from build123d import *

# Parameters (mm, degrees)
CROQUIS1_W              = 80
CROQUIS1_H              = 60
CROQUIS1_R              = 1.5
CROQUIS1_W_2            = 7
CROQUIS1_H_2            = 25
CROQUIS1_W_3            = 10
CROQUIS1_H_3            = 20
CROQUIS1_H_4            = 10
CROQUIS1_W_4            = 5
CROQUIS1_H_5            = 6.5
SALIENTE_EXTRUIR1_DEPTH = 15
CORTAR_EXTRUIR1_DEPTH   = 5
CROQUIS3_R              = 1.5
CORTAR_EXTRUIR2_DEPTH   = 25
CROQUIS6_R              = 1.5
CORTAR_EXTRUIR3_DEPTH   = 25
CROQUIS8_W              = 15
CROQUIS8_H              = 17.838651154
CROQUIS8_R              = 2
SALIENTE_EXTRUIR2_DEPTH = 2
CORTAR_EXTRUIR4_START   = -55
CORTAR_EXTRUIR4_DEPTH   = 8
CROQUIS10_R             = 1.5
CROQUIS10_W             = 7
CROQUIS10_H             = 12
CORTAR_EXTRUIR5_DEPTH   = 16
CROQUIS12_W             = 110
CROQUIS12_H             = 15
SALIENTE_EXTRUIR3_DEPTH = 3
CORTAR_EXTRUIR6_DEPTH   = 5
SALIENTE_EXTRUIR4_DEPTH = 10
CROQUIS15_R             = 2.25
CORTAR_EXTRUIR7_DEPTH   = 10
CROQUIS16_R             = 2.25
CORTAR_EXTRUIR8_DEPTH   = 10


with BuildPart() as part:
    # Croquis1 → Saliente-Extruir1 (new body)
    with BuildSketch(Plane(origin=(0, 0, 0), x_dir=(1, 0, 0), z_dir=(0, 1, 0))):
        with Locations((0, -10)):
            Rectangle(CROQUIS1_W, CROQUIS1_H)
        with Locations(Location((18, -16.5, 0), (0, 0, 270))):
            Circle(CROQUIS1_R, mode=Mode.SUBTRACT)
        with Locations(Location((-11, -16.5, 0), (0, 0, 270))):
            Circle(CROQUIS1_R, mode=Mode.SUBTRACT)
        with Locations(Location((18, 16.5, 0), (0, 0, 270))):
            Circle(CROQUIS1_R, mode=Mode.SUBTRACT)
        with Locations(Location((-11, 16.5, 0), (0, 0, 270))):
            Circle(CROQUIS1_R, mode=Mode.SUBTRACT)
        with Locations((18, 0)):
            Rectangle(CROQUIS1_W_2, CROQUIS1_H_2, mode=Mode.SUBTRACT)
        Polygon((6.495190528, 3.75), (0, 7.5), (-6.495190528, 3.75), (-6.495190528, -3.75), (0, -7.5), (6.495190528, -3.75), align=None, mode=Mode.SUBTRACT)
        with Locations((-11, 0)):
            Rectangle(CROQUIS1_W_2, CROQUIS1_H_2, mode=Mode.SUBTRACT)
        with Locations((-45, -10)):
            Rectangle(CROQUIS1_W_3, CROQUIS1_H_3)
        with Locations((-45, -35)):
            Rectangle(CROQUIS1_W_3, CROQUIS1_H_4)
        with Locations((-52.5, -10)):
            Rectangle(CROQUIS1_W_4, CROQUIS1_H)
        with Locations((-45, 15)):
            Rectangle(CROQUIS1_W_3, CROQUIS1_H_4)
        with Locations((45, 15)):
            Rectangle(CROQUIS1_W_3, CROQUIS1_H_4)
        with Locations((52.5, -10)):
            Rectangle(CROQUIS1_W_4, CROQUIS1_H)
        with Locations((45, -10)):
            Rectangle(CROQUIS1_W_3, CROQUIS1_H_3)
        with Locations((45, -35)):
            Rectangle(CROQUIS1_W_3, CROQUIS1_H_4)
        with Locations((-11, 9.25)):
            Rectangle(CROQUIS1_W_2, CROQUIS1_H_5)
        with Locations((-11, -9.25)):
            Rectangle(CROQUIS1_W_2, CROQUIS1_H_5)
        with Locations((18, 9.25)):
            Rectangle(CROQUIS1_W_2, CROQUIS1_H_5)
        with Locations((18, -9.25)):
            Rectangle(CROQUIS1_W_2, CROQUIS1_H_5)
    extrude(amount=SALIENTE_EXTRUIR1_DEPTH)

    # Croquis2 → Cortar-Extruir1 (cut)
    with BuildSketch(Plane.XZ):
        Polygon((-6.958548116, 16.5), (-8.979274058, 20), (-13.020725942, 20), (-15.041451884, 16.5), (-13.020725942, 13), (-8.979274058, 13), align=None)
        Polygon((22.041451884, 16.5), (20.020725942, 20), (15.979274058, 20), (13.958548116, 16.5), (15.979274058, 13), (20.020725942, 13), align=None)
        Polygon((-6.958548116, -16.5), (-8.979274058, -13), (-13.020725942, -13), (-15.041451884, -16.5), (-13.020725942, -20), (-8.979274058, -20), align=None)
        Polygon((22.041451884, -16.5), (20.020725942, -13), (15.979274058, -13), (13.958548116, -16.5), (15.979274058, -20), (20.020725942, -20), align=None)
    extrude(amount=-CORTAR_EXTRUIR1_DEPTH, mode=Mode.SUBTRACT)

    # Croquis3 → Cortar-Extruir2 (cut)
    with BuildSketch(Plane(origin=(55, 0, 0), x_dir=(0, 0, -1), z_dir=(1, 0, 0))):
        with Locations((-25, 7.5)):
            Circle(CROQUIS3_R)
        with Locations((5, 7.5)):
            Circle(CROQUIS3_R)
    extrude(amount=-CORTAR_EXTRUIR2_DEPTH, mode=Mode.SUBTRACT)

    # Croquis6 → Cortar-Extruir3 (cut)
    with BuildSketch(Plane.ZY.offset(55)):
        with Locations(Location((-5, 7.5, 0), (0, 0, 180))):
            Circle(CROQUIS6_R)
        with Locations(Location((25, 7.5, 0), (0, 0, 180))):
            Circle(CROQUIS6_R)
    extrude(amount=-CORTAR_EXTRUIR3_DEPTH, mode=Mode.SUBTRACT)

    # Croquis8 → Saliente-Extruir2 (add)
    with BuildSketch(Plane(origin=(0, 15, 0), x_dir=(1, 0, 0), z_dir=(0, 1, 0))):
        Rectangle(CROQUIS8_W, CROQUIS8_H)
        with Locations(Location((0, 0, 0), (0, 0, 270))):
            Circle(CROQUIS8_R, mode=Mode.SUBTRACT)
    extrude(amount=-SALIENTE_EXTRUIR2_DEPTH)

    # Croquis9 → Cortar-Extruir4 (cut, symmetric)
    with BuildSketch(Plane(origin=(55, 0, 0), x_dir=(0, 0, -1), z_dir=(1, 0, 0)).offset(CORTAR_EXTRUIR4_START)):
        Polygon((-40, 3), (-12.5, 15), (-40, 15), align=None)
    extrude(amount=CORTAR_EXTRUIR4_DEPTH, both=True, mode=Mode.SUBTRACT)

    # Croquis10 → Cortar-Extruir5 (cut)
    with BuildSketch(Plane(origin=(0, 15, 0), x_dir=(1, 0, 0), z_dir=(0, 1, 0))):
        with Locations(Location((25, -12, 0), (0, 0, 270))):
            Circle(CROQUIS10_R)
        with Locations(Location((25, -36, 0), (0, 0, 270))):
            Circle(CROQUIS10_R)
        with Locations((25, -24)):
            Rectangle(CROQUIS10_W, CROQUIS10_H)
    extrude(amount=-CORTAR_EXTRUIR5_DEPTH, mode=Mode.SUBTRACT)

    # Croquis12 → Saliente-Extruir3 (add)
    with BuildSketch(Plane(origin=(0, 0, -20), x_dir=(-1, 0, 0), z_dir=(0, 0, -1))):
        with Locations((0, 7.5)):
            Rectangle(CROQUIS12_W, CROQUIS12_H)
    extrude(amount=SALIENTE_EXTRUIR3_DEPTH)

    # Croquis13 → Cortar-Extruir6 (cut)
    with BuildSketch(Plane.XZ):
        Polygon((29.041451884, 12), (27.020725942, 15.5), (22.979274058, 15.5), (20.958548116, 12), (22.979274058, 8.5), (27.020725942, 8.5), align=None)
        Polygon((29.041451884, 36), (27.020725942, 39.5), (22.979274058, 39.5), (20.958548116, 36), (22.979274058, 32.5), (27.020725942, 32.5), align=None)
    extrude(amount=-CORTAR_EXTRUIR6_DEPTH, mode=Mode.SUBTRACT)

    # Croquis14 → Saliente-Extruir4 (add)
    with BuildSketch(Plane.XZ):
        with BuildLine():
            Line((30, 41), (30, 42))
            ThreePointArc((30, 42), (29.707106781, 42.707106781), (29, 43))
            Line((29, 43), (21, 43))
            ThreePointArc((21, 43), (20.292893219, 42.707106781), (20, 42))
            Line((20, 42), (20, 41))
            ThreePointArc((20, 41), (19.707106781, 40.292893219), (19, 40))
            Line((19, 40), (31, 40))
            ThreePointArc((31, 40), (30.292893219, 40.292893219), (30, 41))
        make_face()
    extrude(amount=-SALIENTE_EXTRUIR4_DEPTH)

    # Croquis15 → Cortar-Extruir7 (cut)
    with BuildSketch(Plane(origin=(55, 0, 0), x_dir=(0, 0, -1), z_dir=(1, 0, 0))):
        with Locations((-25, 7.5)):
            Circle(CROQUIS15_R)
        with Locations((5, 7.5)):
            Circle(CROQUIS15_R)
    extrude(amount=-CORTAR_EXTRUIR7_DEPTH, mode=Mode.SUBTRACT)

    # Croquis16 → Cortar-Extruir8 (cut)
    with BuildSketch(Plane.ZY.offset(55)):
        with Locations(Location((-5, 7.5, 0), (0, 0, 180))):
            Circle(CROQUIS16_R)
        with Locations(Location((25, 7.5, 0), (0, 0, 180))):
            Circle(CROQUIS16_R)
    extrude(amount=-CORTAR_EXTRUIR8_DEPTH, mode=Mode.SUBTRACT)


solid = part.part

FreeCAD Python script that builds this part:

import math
import FreeCAD as App
import Part
import Sketcher

V = App.Vector
Q = App.Units.Quantity


def add_polygon(sketch, points):
    """Adds a closed chain of lines whose ends are joined by coincident constraints."""
    first, n = sketch.GeometryCount, len(points)
    for a, b in zip(points, points[1:] + points[:1]):
        sketch.addGeometry(Part.LineSegment(App.Vector(*a, 0), App.Vector(*b, 0)), False)
    for i in range(n):
        sketch.addConstraint(Sketcher.Constraint("Coincident", first + i, 2, first + (i + 1) % n, 1))

doc = App.newDocument("Part")
body = doc.addObject("PartDesign::Body", "Body")

sketch1 = doc.addObject("Sketcher::SketchObject", "Sketch")
body.addObject(sketch1)
sketch1.AttachmentSupport = (doc.XZ_Plane, [""])
sketch1.MapMode = "FlatFace"
add_polygon(sketch1, [(55, 40), (55, -20), (-55, -20), (-55, 40)])
add_polygon(sketch1, [(-40, 20), (-40, 30), (-50, 30), (-50, 20)])
add_polygon(sketch1, [(40, 30), (40, 20), (50, 20), (50, 30)])
add_polygon(sketch1, [(40, 0), (40, -10), (50, -10), (50, 0)])
add_polygon(sketch1, [(-40, -10), (-40, 0), (-50, 0), (-50, -10)])
sketch1.addGeometry(Part.Circle(V(-11, 16.5, 0), V(0, 0, 1), 1.5), False)
sketch1.addGeometry(Part.Circle(V(18, 16.5, 0), V(0, 0, 1), 1.5), False)
add_polygon(sketch1, [(-14.5, 6), (-14.5, -6), (-7.5, -6), (-7.5, 6)])
add_polygon(sketch1, [(0, -7.5), (6.5, -3.8), (6.5, 3.8), (0, 7.5), (-6.5, 3.8), (-6.5, -3.8)])
sketch1.addGeometry(Part.Circle(V(-11, -16.5, 0), V(0, 0, 1), 1.5), False)
add_polygon(sketch1, [(14.5, 6), (14.5, -6), (21.5, -6), (21.5, 6)])
sketch1.addGeometry(Part.Circle(V(18, -16.5, 0), V(0, 0, 1), 1.5), False)
sketch1.addConstraint([
    Sketcher.Constraint("Vertical", 0),
    Sketcher.Constraint("Horizontal", 1),
    Sketcher.Constraint("Vertical", 2),
    Sketcher.Constraint("Horizontal", 3),
    Sketcher.Constraint("Vertical", 4),
    Sketcher.Constraint("Horizontal", 5),
    Sketcher.Constraint("Vertical", 6),
    Sketcher.Constraint("Horizontal", 7),
    Sketcher.Constraint("Vertical", 8),
    Sketcher.Constraint("Horizontal", 9),
    Sketcher.Constraint("Vertical", 10),
    Sketcher.Constraint("Horizontal", 11),
    Sketcher.Constraint("Vertical", 12),
    Sketcher.Constraint("Horizontal", 13),
    Sketcher.Constraint("Vertical", 14),
    Sketcher.Constraint("Horizontal", 15),
    Sketcher.Constraint("Vertical", 16),
    Sketcher.Constraint("Horizontal", 17),
    Sketcher.Constraint("Vertical", 18),
    Sketcher.Constraint("Horizontal", 19),
    Sketcher.Constraint("Vertical", 22),
    Sketcher.Constraint("Horizontal", 23),
    Sketcher.Constraint("Vertical", 24),
    Sketcher.Constraint("Horizontal", 25),
    Sketcher.Constraint("Vertical", 27),
    Sketcher.Constraint("Vertical", 30),
    Sketcher.Constraint("Vertical", 33),
    Sketcher.Constraint("Horizontal", 34),
    Sketcher.Constraint("Vertical", 35),
    Sketcher.Constraint("Horizontal", 36),
    Sketcher.Constraint("Equal", 20, 21),
    Sketcher.Constraint("Equal", 21, 32),
    Sketcher.Constraint("Equal", 32, 37),
    Sketcher.Constraint("Symmetric", 15, 2, 16, 2, -1, 1),
    Sketcher.Constraint("Symmetric", 26, 2, 29, 2, -1, 1),
    Sketcher.Constraint("Symmetric", 28, 2, 31, 2, -1, 1),
    Sketcher.Constraint("Symmetric", 25, 2, 33, 2, -1, 1),
    Sketcher.Constraint("Symmetric", 7, 2, 8, 2, -2),
    Sketcher.Constraint("Symmetric", 5, 2, 10, 2, -2),
    Sketcher.Constraint("Symmetric", 14, 2, 17, 2, -2),
    Sketcher.Constraint("Symmetric", 20, 3, 32, 3, -1),
    Sketcher.Constraint("Symmetric", 21, 3, 37, 3, -1),
    Sketcher.Constraint("PointOnObject", 28, 2, -2),
    Sketcher.Constraint("Parallel", 28, 31),
    Sketcher.Constraint("Horizontal", 20, 3, 21, 3),
    Sketcher.Constraint("Horizontal", 13, 2, 18, 2),
    Sketcher.Constraint("Horizontal", 27, 2, 29, 2),
    Sketcher.Constraint("Horizontal", 23, 2, 33, 2),
    Sketcher.Constraint("Horizontal", 25, 2, 35, 2),
    Sketcher.Constraint("Vertical", 11, 2, 12, 2),
    Sketcher.Constraint("Vertical", 10, 2, 13, 2),
    Sketcher.Constraint("Equal", 25, 34),
    Sketcher.Constraint("Equal", 19, 4),
    Sketcher.Constraint("Equal", 10, 12),
    Sketcher.Constraint("Diameter", 20, 3.0),
    Sketcher.Constraint("DistanceX", 1, 2, 1, 1, 110.0),
    Sketcher.Constraint("DistanceX", 5, 2, 5, 1, 10.0),
    Sketcher.Constraint("DistanceX", 23, 1, 23, 2, 7.0),
    Sketcher.Constraint("DistanceY", 0, 2, 0, 1, 60.0),
    Sketcher.Constraint("DistanceY", 22, 2, 22, 1, 12.0),
    Sketcher.Constraint("Angle", 26, Q("30 deg")),
    Sketcher.Constraint("DistanceY", 27, 1, 27, 2, 7.5),
    Sketcher.Constraint("DistanceX", 20, 3, -1, 1, 11.0),
    Sketcher.Constraint("DistanceX", -1, 1, 21, 3, 18.0),
    Sketcher.Constraint("DistanceX", -1, 1, 0, 2, 55.0),
    Sketcher.Constraint("DistanceY", 0, 2, -1, 1, 20.0),
    Sketcher.Constraint("DistanceX", 4, 2, -1, 1, 40.0),
    Sketcher.Constraint("DistanceY", -1, 1, 4, 2, 30.0),
    Sketcher.Constraint("DistanceY", 32, 3, 20, 3, 33.0),
    Sketcher.Constraint("DistanceY", 28, 2, 20, 3, 9.0),
    Sketcher.Constraint("DistanceX", 22, 2, -1, 1, 14.5),
])
pad1 = doc.addObject("PartDesign::Pad", "Pad")
body.addObject(pad1)
pad1.Profile = sketch1
pad1.Length = 15
pad1.Reversed = True

sketch2 = doc.addObject("Sketcher::SketchObject", "Sketch001")
body.addObject(sketch2)
sketch2.AttachmentSupport = (doc.XZ_Plane, [""])
sketch2.MapMode = "FlatFace"
add_polygon(sketch2, [(-7, 16.5), (-9, 20), (-13, 20), (-15, 16.5), (-13, 13), (-9, 13)])
add_polygon(sketch2, [(22, 16.5), (20, 20), (16, 20), (14, 16.5), (16, 13), (20, 13)])
add_polygon(sketch2, [(-7, -16.5), (-9, -13), (-13, -13), (-15, -16.5), (-13, -20), (-9, -20)])
add_polygon(sketch2, [(22, -16.5), (20, -13), (16, -13), (14, -16.5), (16, -20), (20, -20)])
sketch2.addConstraint([
    Sketcher.Constraint("Horizontal", 1),
    Sketcher.Constraint("Horizontal", 4),
    Sketcher.Constraint("Horizontal", 7),
    Sketcher.Constraint("Horizontal", 10),
    Sketcher.Constraint("Horizontal", 13),
    Sketcher.Constraint("Horizontal", 16),
    Sketcher.Constraint("Horizontal", 19),
    Sketcher.Constraint("Horizontal", 22),
    Sketcher.Constraint("Symmetric", 4, 2, 12, 2, -1),
    Sketcher.Constraint("Symmetric", 2, 2, 14, 2, -1),
    Sketcher.Constraint("Symmetric", 1, 2, 15, 2, -1),
    Sketcher.Constraint("Symmetric", 5, 2, 17, 2, -1),
    Sketcher.Constraint("Symmetric", 10, 2, 18, 2, -1),
    Sketcher.Constraint("Symmetric", 8, 2, 20, 2, -1),
    Sketcher.Constraint("Symmetric", 7, 2, 21, 2, -1),
    Sketcher.Constraint("Symmetric", 11, 2, 23, 2, -1),
    Sketcher.Constraint("Parallel", 0, 3),
    Sketcher.Constraint("Parallel", 2, 5),
    Sketcher.Constraint("Parallel", 3, 6),
    Sketcher.Constraint("Parallel", 5, 8),
    Sketcher.Constraint("Parallel", 6, 9),
    Sketcher.Constraint("Parallel", 8, 11),
    Sketcher.Constraint("Parallel", 9, 12),
    Sketcher.Constraint("Parallel", 11, 14),
    Sketcher.Constraint("Parallel", 14, 17),
    Sketcher.Constraint("Parallel", 17, 20),
    Sketcher.Constraint("Parallel", 20, 23),
    Sketcher.Constraint("Horizontal", 2, 2, 5, 2),
    Sketcher.Constraint("Horizontal", 1, 2, 6, 2),
    Sketcher.Constraint("Horizontal", 5, 2, 8, 2),
    Sketcher.Constraint("Horizontal", 4, 2, 9, 2),
    Sketcher.Constraint("Horizontal", 8, 2, 11, 2),
    Sketcher.Constraint("Vertical", 1, 2, 3, 2),
    Sketcher.Constraint("Equal", 4, 7),
    Sketcher.Constraint("Angle", 0, Q("120 deg")),
    Sketcher.Constraint("DistanceY", -1, 1, 0, 2, 20.0),
    Sketcher.Constraint("DistanceY", -1, 1, 3, 2, 13.0),
    Sketcher.Constraint("DistanceX", 0, 2, 6, 2, 29.0),
    Sketcher.Constraint("DistanceX", 1, 2, 1, 1, 4.041452),
    Sketcher.Constraint("DistanceX", 2, 2, -1, 1, 15.041452),
])
pocket1 = doc.addObject("PartDesign::Pocket", "Pocket")
body.addObject(pocket1)
pocket1.Profile = sketch2
pocket1.Length = 5

sketch3 = doc.addObject("Sketcher::SketchObject", "Sketch002")
body.addObject(sketch3)
sketch3.AttachmentSupport = (doc.YZ_Plane, [""])
sketch3.MapMode = "FlatFace"
sketch3.AttachmentOffset = App.Placement(V(0, 0, 55), App.Rotation())
sketch3.addGeometry([
    Part.Circle(V(7.5, 25, 0), V(0, 0, 1), 1.5),
    Part.Circle(V(7.5, -5, 0), V(0, 0, 1), 1.5),
], False)
sketch3.addConstraint([
    Sketcher.Constraint("Equal", 0, 1),
    Sketcher.Constraint("Vertical", 0, 3, 1, 3),
    Sketcher.Constraint("Diameter", 0, 3.0),
    Sketcher.Constraint("DistanceY", -1, 1, 0, 3, 25.0),
    Sketcher.Constraint("DistanceY", 1, 3, -1, 1, 5.0),
    Sketcher.Constraint("DistanceX", -1, 1, 0, 3, 7.5),
])
pocket2 = doc.addObject("PartDesign::Pocket", "Pocket001")
body.addObject(pocket2)
pocket2.Profile = sketch3
pocket2.Length = 25

sketch4 = doc.addObject("Sketcher::SketchObject", "Sketch003")
body.addObject(sketch4)
sketch4.AttachmentSupport = (doc.YZ_Plane, [""])
sketch4.MapMode = "FlatFace"
sketch4.AttachmentOffset = App.Placement(V(0, 0, -55), App.Rotation())
sketch4.addGeometry([
    Part.Circle(V(7.5, -5, 0), V(0, 0, 1), 1.5),
    Part.Circle(V(7.5, 25, 0), V(0, 0, 1), 1.5),
], False)
sketch4.addConstraint([
    Sketcher.Constraint("Equal", 0, 1),
    Sketcher.Constraint("Vertical", 0, 3, 1, 3),
    Sketcher.Constraint("Diameter", 0, 3.0),
    Sketcher.Constraint("DistanceY", 0, 3, -1, 1, 5.0),
    Sketcher.Constraint("DistanceY", -1, 1, 1, 3, 25.0),
    Sketcher.Constraint("DistanceX", -1, 1, 0, 3, 7.5),
])
pocket3 = doc.addObject("PartDesign::Pocket", "Pocket002")
body.addObject(pocket3)
pocket3.Profile = sketch4
pocket3.Length = 25
pocket3.Reversed = True

sketch5 = doc.addObject("Sketcher::SketchObject", "Sketch004")
body.addObject(sketch5)
sketch5.AttachmentSupport = (doc.XZ_Plane, [""])
sketch5.MapMode = "FlatFace"
sketch5.AttachmentOffset = App.Placement(V(0, 0, -15), App.Rotation())
add_polygon(sketch5, [(-7.5, -8.9), (-7.5, 8.9), (7.5, 8.9), (7.5, -8.9)])
sketch5.addGeometry(Part.Circle(V(0, 0, 0), V(0, 0, 1), 2), False)
sketch5.addConstraint([
    Sketcher.Constraint("Vertical", 0),
    Sketcher.Constraint("Horizontal", 1),
    Sketcher.Constraint("Vertical", 2),
    Sketcher.Constraint("Horizontal", 3),
    Sketcher.Constraint("Coincident", 4, 3, -1, 1),
    Sketcher.Constraint("Symmetric", 0, 2, 2, 2, -1, 1),
    Sketcher.Constraint("Diameter", 4, 4.0),
    Sketcher.Constraint("DistanceX", 1, 1, 1, 2, 15.0),
    Sketcher.Constraint("DistanceY", 0, 1, 0, 2, 17.838651),
])
pad2 = doc.addObject("PartDesign::Pad", "Pad001")
body.addObject(pad2)
pad2.Profile = sketch5
pad2.Length = 2

sketch6 = doc.addObject("Sketcher::SketchObject", "Sketch005")
body.addObject(sketch6)
sketch6.AttachmentSupport = (doc.YZ_Plane, [""])
sketch6.MapMode = "FlatFace"
add_polygon(sketch6, [(3, 40), (15, 12), (15, 40)])
sketch6.addConstraint([
    Sketcher.Constraint("Vertical", 1),
    Sketcher.Constraint("Horizontal", 2),
    Sketcher.Constraint("DistanceX", 2, 2, 2, 1, 12.0),
    Sketcher.Constraint("DistanceY", 1, 1, 1, 2, 27.5),
    Sketcher.Constraint("DistanceX", -1, 1, 0, 2, 15.0),
    Sketcher.Constraint("DistanceY", -1, 1, 1, 2, 40.0),
])
pocket4 = doc.addObject("PartDesign::Pocket", "Pocket003")
body.addObject(pocket4)
pocket4.Profile = sketch6
pocket4.Length = 16
pocket4.Midplane = True

sketch7 = doc.addObject("Sketcher::SketchObject", "Sketch006")
body.addObject(sketch7)
sketch7.AttachmentSupport = (doc.XZ_Plane, [""])
sketch7.MapMode = "FlatFace"
sketch7.AttachmentOffset = App.Placement(V(0, 0, -15), App.Rotation())
sketch7.addGeometry(Part.Circle(V(25, 12, 0), V(0, 0, 1), 1.5), False)
sketch7.addGeometry(Part.Circle(V(25, 36, 0), V(0, 0, 1), 1.5), False)
add_polygon(sketch7, [(21.5, 18), (21.5, 30), (28.5, 30), (28.5, 18)])
sketch7.addConstraint([
    Sketcher.Constraint("Vertical", 2),
    Sketcher.Constraint("Horizontal", 3),
    Sketcher.Constraint("Vertical", 4),
    Sketcher.Constraint("Horizontal", 5),
    Sketcher.Constraint("Equal", 0, 1),
    Sketcher.Constraint("Vertical", 0, 3, 1, 3),
    Sketcher.Constraint("Diameter", 0, 3.0),
    Sketcher.Constraint("DistanceX", 3, 1, 3, 2, 7.0),
    Sketcher.Constraint("DistanceY", 2, 1, 2, 2, 12.0),
    Sketcher.Constraint("DistanceX", -1, 1, 0, 3, 25.0),
    Sketcher.Constraint("DistanceY", -1, 1, 0, 3, 12.0),
    Sketcher.Constraint("DistanceY", -1, 1, 1, 3, 36.0),
    Sketcher.Constraint("DistanceY", -1, 1, 2, 2, 30.0),
    Sketcher.Constraint("DistanceX", -1, 1, 2, 2, 21.5),
])
pocket5 = doc.addObject("PartDesign::Pocket", "Pocket004")
body.addObject(pocket5)
pocket5.Profile = sketch7
pocket5.Length = 16
pocket5.Reversed = True

sketch8 = doc.addObject("Sketcher::SketchObject", "Sketch007")
body.addObject(sketch8)
sketch8.AttachmentSupport = (doc.XY_Plane, [""])
sketch8.MapMode = "FlatFace"
sketch8.AttachmentOffset = App.Placement(V(0, 0, -20), App.Rotation())
add_polygon(sketch8, [(55, 15), (55, 0), (-55, 0), (-55, 15)])
sketch8.addConstraint([
    Sketcher.Constraint("Vertical", 0),
    Sketcher.Constraint("Horizontal", 1),
    Sketcher.Constraint("Vertical", 2),
    Sketcher.Constraint("Horizontal", 3),
    Sketcher.Constraint("Symmetric", 0, 2, 1, 2, -1, 1),
    Sketcher.Constraint("DistanceX", 1, 2, 1, 1, 110.0),
    Sketcher.Constraint("DistanceY", 0, 2, 0, 1, 15.0),
])
pad3 = doc.addObject("PartDesign::Pad", "Pad002")
body.addObject(pad3)
pad3.Profile = sketch8
pad3.Length = 3
pad3.Reversed = True

sketch9 = doc.addObject("Sketcher::SketchObject", "Sketch008")
body.addObject(sketch9)
sketch9.AttachmentSupport = (doc.XZ_Plane, [""])
sketch9.MapMode = "FlatFace"
add_polygon(sketch9, [(29, 12), (27, 15.5), (23, 15.5), (21, 12), (23, 8.5), (27, 8.5)])
add_polygon(sketch9, [(29, 36), (27, 39.5), (23, 39.5), (21, 36), (23, 32.5), (27, 32.5)])
sketch9.addConstraint([
    Sketcher.Constraint("Horizontal", 1),
    Sketcher.Constraint("Horizontal", 4),
    Sketcher.Constraint("Horizontal", 7),
    Sketcher.Constraint("Horizontal", 10),
    Sketcher.Constraint("Parallel", 0, 3),
    Sketcher.Constraint("Parallel", 2, 5),
    Sketcher.Constraint("Parallel", 3, 6),
    Sketcher.Constraint("Parallel", 5, 8),
    Sketcher.Constraint("Parallel", 6, 9),
    Sketcher.Constraint("Parallel", 8, 11),
    Sketcher.Constraint("Horizontal", 2, 2, 5, 2),
    Sketcher.Constraint("Horizontal", 8, 2, 11, 2),
    Sketcher.Constraint("Vertical", 1, 2, 3, 2),
    Sketcher.Constraint("Vertical", 0, 2, 4, 2),
    Sketcher.Constraint("Vertical", 4, 2, 6, 2),
    Sketcher.Constraint("Vertical", 3, 2, 7, 2),
    Sketcher.Constraint("Vertical", 2, 2, 8, 2),
    Sketcher.Constraint("Vertical", 7, 2, 9, 2),
    Sketcher.Constraint("Angle", 0, Q("120 deg")),
    Sketcher.Constraint("DistanceY", -1, 1, 2, 2, 12.0),
    Sketcher.Constraint("DistanceY", -1, 1, 8, 2, 36.0),
    Sketcher.Constraint("DistanceY", 3, 2, 1, 2, 7.0),
    Sketcher.Constraint("DistanceX", 1, 2, 1, 1, 4.041452),
    Sketcher.Constraint("DistanceX", -1, 1, 2, 2, 20.958548),
])
pocket6 = doc.addObject("PartDesign::Pocket", "Pocket005")
body.addObject(pocket6)
pocket6.Profile = sketch9
pocket6.Length = 5

sketch10 = doc.addObject("Sketcher::SketchObject", "Sketch009")
body.addObject(sketch10)
sketch10.AttachmentSupport = (doc.XZ_Plane, [""])
sketch10.MapMode = "FlatFace"
sketch10.addGeometry([
    Part.LineSegment(V(30, 41, 0), V(30, 42, 0)),
    Part.ArcOfCircle(Part.Circle(V(29, 42, 0), V(0, 0, 1), 1), math.radians(0), math.radians(90)),
    Part.LineSegment(V(29, 43, 0), V(21, 43, 0)),
    Part.ArcOfCircle(Part.Circle(V(21, 42, 0), V(0, 0, 1), 1), math.radians(90), math.radians(180)),
    Part.LineSegment(V(20, 42, 0), V(20, 41, 0)),
    Part.ArcOfCircle(Part.Circle(V(19, 41, 0), V(0, 0, 1), 1), math.radians(-90), math.radians(0)),
    Part.LineSegment(V(19, 40, 0), V(31, 40, 0)),
    Part.ArcOfCircle(Part.Circle(V(31, 41, 0), V(0, 0, 1), 1), math.radians(-180), math.radians(-90)),
], False)
sketch10.addConstraint([
    Sketcher.Constraint("Tangent", 0, 2, 1, 1),
    Sketcher.Constraint("Tangent", 1, 2, 2, 1),
    Sketcher.Constraint("Tangent", 2, 2, 3, 1),
    Sketcher.Constraint("Tangent", 3, 2, 4, 1),
    Sketcher.Constraint("Tangent", 4, 2, 5, 2),
    Sketcher.Constraint("Tangent", 5, 1, 6, 1),
    Sketcher.Constraint("Tangent", 6, 2, 7, 2),
    Sketcher.Constraint("Tangent", 7, 1, 0, 1),
    Sketcher.Constraint("Vertical", 0),
    Sketcher.Constraint("Horizontal", 2),
    Sketcher.Constraint("Vertical", 4),
    Sketcher.Constraint("Horizontal", 6),
    Sketcher.Constraint("Equal", 1, 3),
    Sketcher.Constraint("Equal", 3, 5),
    Sketcher.Constraint("Equal", 5, 7),
    Sketcher.Constraint("Radius", 1, 1.0),
    Sketcher.Constraint("DistanceX", 2, 2, 2, 1, 8.0),
    Sketcher.Constraint("DistanceY", 0, 1, 0, 2, 1.0),
    Sketcher.Constraint("DistanceX", -1, 1, 1, 3, 29.0),
    Sketcher.Constraint("DistanceY", -1, 1, 1, 3, 42.0),
])
pad4 = doc.addObject("PartDesign::Pad", "Pad003")
body.addObject(pad4)
pad4.Profile = sketch10
pad4.Length = 10
pad4.Reversed = True

sketch11 = doc.addObject("Sketcher::SketchObject", "Sketch010")
body.addObject(sketch11)
sketch11.AttachmentSupport = (doc.YZ_Plane, [""])
sketch11.MapMode = "FlatFace"
sketch11.AttachmentOffset = App.Placement(V(0, 0, 55), App.Rotation())
sketch11.addGeometry([
    Part.Circle(V(7.5, 25, 0), V(0, 0, 1), 2.2),
    Part.Circle(V(7.5, -5, 0), V(0, 0, 1), 2.2),
], False)
sketch11.addConstraint([
    Sketcher.Constraint("Equal", 0, 1),
    Sketcher.Constraint("Vertical", 0, 3, 1, 3),
    Sketcher.Constraint("Diameter", 0, 4.5),
    Sketcher.Constraint("DistanceY", -1, 1, 0, 3, 25.0),
    Sketcher.Constraint("DistanceY", 1, 3, -1, 1, 5.0),
    Sketcher.Constraint("DistanceX", -1, 1, 0, 3, 7.5),
])
pocket7 = doc.addObject("PartDesign::Pocket", "Pocket006")
body.addObject(pocket7)
pocket7.Profile = sketch11
pocket7.Length = 10

sketch12 = doc.addObject("Sketcher::SketchObject", "Sketch011")
body.addObject(sketch12)
sketch12.AttachmentSupport = (doc.YZ_Plane, [""])
sketch12.MapMode = "FlatFace"
sketch12.AttachmentOffset = App.Placement(V(0, 0, -55), App.Rotation())
sketch12.addGeometry([
    Part.Circle(V(7.5, -5, 0), V(0, 0, 1), 2.2),
    Part.Circle(V(7.5, 25, 0), V(0, 0, 1), 2.2),
], False)
sketch12.addConstraint([
    Sketcher.Constraint("Equal", 0, 1),
    Sketcher.Constraint("Vertical", 0, 3, 1, 3),
    Sketcher.Constraint("Diameter", 0, 4.5),
    Sketcher.Constraint("DistanceY", 0, 3, -1, 1, 5.0),
    Sketcher.Constraint("DistanceY", -1, 1, 1, 3, 25.0),
    Sketcher.Constraint("DistanceX", -1, 1, 0, 3, 7.5),
])
pocket8 = doc.addObject("PartDesign::Pocket", "Pocket007")
body.addObject(pocket8)
pocket8.Profile = sketch12
pocket8.Length = 10
pocket8.Reversed = True

doc.recompute()
